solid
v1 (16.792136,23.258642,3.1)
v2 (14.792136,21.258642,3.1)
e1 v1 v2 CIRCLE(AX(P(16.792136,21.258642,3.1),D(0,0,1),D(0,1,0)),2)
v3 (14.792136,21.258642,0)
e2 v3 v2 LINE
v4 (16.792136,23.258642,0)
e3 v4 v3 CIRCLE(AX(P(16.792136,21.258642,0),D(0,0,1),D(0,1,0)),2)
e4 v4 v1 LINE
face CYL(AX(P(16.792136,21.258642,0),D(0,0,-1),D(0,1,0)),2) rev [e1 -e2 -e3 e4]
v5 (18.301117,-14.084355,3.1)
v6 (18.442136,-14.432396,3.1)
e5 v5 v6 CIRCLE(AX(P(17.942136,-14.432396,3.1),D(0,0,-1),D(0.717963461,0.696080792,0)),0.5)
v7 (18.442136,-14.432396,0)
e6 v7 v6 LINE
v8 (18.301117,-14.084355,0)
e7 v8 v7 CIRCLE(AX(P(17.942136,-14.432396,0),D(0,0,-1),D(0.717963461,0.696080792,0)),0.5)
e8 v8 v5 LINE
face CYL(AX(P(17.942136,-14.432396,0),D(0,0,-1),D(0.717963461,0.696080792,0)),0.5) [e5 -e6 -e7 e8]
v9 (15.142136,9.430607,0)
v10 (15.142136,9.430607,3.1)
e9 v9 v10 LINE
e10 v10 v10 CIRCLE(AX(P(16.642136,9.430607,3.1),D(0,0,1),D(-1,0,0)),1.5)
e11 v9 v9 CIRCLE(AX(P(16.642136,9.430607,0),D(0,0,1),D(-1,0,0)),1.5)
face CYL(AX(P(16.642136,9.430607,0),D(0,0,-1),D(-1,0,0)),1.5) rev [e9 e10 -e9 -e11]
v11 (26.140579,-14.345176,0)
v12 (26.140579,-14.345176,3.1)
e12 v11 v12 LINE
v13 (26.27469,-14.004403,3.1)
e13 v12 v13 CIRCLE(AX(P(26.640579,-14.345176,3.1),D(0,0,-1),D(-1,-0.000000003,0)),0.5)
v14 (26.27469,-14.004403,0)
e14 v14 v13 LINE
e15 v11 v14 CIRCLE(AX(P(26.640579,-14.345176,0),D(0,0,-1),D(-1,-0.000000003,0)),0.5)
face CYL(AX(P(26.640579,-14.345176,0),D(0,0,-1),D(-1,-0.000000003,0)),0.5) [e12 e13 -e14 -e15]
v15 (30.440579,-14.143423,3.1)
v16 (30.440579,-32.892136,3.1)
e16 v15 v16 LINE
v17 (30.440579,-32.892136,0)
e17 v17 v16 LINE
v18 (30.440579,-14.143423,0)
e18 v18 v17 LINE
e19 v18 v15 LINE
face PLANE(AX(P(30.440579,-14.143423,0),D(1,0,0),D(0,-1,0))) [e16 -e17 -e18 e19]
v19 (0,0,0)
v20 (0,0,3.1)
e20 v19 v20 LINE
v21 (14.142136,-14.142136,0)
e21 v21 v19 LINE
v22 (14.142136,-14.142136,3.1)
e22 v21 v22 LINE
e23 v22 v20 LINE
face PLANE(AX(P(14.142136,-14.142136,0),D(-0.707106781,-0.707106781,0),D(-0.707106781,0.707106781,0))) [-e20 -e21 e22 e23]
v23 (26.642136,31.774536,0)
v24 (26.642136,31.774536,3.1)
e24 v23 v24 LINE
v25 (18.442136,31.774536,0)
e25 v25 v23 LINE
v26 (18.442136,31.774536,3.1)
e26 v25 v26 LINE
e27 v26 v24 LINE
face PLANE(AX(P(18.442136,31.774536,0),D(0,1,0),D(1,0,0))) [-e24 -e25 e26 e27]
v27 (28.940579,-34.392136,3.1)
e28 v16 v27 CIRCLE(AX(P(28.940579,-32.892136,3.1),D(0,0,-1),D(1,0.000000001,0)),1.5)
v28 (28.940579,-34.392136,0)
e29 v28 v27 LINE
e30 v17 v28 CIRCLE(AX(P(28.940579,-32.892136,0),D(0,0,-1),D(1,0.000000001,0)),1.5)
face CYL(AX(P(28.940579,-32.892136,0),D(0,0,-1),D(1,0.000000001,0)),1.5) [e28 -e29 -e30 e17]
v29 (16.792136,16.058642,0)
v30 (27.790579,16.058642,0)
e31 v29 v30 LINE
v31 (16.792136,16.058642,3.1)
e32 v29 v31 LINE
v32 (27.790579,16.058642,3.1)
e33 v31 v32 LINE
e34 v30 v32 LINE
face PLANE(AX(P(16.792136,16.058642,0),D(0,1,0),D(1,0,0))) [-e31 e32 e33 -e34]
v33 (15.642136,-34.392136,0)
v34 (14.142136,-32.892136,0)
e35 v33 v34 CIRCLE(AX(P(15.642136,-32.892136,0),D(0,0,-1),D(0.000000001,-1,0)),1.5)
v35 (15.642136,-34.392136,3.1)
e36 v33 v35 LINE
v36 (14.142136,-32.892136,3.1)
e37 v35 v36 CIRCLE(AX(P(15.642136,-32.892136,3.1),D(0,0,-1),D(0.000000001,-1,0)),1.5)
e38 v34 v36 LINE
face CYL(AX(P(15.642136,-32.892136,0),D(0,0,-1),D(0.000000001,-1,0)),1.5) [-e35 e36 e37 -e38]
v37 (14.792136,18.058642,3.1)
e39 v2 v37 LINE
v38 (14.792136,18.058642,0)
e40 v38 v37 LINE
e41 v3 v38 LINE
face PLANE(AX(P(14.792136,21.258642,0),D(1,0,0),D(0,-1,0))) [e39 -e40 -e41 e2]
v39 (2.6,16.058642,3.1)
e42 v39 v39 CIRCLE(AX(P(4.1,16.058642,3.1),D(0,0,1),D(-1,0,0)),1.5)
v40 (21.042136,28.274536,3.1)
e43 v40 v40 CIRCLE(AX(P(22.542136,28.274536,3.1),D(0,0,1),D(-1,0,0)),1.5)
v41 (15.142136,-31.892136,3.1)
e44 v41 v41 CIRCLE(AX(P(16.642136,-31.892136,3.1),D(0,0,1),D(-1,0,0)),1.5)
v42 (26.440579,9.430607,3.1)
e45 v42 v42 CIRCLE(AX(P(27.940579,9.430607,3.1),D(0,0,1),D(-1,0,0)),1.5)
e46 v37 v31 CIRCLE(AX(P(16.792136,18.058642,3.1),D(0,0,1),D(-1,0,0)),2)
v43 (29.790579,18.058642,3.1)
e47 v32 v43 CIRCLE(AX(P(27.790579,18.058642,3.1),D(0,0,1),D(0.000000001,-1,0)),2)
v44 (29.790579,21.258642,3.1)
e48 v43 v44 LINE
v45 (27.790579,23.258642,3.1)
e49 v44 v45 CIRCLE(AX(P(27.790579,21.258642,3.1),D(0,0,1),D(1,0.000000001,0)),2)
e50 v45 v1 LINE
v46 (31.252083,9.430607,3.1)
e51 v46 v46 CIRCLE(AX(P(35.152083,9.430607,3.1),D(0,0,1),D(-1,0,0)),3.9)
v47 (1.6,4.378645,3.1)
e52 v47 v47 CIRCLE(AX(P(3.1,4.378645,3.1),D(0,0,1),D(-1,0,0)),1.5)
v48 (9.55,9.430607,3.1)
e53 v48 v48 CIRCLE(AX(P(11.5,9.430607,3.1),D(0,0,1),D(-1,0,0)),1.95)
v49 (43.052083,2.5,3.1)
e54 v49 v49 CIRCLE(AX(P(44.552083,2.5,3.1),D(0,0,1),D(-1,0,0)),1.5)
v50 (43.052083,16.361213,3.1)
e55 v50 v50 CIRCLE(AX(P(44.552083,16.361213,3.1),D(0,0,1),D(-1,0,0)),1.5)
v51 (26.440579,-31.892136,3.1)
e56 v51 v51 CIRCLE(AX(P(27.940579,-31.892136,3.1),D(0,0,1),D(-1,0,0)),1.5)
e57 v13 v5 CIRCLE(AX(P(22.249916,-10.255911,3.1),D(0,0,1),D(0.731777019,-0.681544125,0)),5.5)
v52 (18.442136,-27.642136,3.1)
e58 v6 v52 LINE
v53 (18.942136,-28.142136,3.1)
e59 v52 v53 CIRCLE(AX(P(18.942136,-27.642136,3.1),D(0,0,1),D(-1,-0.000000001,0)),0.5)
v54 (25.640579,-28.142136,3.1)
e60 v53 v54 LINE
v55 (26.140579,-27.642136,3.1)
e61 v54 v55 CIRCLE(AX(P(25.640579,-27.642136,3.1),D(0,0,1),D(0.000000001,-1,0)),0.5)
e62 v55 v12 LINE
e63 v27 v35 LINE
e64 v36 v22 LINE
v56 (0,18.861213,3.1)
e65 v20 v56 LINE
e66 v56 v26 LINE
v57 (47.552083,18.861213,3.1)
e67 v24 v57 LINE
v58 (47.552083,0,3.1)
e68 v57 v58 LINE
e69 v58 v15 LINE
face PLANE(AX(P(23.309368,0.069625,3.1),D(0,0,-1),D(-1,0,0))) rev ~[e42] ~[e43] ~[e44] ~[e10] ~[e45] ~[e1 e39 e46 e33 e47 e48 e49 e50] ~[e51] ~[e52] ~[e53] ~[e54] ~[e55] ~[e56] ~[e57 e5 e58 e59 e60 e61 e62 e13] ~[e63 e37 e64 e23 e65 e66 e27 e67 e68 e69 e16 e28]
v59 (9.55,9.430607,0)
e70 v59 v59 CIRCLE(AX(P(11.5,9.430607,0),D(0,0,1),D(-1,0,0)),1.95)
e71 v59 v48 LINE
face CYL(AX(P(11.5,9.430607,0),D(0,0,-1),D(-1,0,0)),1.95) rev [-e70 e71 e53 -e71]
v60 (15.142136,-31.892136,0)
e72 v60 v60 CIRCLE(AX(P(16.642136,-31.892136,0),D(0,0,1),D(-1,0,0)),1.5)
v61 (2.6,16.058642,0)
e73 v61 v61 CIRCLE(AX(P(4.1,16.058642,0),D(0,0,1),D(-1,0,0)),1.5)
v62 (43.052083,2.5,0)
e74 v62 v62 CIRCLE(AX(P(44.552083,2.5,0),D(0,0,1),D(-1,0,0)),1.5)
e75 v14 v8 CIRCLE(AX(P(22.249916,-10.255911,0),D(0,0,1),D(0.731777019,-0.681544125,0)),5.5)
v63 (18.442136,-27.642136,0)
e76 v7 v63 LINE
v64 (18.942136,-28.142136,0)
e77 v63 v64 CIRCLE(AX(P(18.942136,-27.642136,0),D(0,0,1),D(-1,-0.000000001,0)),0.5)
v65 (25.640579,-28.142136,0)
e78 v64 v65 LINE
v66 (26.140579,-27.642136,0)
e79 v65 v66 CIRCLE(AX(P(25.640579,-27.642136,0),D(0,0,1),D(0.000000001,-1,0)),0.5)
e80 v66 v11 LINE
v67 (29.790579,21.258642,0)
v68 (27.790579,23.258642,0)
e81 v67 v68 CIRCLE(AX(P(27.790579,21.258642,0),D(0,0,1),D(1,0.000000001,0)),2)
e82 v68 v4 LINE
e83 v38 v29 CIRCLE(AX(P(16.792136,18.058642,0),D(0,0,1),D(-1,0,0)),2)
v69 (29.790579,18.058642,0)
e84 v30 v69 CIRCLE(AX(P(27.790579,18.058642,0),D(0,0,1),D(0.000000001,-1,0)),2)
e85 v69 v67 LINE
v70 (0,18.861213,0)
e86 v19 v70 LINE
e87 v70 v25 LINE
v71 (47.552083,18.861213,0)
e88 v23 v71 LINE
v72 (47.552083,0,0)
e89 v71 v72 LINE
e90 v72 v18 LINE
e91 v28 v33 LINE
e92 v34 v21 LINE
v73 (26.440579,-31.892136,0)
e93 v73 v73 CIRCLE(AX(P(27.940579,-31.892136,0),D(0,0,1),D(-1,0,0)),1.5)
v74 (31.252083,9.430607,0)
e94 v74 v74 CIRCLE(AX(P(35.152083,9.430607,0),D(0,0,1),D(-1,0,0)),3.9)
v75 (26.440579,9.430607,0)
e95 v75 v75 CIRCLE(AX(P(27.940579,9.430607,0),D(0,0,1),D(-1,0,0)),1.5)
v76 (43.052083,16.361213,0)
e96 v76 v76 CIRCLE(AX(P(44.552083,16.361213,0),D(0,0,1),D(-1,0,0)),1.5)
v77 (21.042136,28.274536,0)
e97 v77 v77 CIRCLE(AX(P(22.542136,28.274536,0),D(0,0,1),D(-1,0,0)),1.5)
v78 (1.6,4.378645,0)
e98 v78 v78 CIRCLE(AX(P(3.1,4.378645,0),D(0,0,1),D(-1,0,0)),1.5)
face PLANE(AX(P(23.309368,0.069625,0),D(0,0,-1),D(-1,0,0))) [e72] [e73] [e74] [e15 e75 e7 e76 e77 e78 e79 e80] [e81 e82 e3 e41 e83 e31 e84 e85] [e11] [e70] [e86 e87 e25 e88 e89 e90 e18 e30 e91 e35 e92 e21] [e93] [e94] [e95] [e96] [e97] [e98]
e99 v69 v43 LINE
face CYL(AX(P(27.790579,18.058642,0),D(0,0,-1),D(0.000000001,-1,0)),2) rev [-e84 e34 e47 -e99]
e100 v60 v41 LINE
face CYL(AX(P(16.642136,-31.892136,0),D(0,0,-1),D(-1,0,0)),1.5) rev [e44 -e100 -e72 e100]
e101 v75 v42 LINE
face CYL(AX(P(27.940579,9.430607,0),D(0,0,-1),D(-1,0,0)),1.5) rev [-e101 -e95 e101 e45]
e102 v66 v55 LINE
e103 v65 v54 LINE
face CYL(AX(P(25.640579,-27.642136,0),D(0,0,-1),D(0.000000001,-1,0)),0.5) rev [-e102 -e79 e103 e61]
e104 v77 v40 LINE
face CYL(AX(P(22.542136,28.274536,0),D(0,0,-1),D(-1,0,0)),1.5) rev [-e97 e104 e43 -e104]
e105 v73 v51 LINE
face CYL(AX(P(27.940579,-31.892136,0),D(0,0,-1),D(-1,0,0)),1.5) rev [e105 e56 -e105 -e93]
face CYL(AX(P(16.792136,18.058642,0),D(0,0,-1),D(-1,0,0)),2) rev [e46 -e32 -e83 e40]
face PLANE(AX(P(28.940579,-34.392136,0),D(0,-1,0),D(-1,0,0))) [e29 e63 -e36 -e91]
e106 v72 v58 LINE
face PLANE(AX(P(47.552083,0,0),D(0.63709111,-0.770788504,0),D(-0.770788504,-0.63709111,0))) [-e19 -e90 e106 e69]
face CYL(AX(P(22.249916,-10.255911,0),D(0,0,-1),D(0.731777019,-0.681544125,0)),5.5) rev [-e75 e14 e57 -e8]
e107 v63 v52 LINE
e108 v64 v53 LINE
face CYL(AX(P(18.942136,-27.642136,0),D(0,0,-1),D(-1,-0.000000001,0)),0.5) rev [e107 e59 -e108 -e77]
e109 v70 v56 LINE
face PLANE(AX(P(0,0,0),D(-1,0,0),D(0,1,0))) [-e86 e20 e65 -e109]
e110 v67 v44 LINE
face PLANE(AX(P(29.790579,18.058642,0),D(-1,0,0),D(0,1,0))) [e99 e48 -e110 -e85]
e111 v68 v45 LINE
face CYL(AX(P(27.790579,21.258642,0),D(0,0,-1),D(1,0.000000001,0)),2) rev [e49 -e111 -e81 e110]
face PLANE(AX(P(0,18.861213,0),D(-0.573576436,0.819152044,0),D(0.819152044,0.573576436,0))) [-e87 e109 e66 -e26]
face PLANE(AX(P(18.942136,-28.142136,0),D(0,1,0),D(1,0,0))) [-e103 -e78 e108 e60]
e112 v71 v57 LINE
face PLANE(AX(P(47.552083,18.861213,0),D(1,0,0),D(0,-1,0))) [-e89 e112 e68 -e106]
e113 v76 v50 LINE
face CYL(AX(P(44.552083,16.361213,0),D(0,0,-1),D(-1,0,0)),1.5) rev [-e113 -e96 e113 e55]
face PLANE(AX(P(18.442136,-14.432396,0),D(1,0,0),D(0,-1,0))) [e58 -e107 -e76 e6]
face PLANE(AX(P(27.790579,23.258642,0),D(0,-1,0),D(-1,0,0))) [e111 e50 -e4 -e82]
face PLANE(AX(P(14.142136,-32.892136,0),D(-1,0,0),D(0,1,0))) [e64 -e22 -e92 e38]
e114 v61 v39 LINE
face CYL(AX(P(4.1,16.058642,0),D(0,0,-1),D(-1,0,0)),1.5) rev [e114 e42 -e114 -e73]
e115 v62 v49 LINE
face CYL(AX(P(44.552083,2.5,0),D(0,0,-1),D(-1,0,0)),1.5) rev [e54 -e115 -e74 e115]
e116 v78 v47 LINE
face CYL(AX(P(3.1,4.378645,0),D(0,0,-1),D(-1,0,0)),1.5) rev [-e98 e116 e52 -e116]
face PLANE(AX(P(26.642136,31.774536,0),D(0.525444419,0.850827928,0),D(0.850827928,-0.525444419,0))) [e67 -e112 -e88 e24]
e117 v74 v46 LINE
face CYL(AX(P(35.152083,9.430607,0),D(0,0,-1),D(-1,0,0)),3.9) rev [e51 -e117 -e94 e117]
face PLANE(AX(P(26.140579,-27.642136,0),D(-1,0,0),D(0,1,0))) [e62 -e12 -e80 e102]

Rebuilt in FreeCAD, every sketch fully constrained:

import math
import FreeCAD as App
import Part
import Sketcher

V = App.Vector
Q = App.Units.Quantity

doc = App.newDocument("Part")
body = doc.addObject("PartDesign::Body", "Body")

sketch1 = body.newObject("Sketcher::SketchObject", "Sketch")
sketch1.AttachmentSupport = (doc.getObject("XY_Plane"), [""])
sketch1.MapMode = "FlatFace"
sketch1.addGeometry(Part.LineSegment(V(0, 18.861213, 0), V(0, 0, 0)), False)
sketch1.addGeometry(Part.LineSegment(V(0, 0, 0), V(14.142136, -14.142136, 0)), False)
sketch1.addGeometry(Part.LineSegment(V(14.142136, -14.142136, 0), V(14.142136, -32.892136, 0)), False)
sketch1.addGeometry(Part.ArcOfCircle(Part.Circle(V(15.642136, -32.892136, 0), V(0, 0, 1), 1.5), math.radians(180), math.radians(270)), False)
sketch1.addGeometry(Part.LineSegment(V(15.642136, -34.392136, 0), V(28.940579, -34.392136, 0)), False)
sketch1.addGeometry(Part.ArcOfCircle(Part.Circle(V(28.940579, -32.892136, 0), V(0, 0, 1), 1.5), math.radians(-90), math.radians(0)), False)
sketch1.addGeometry(Part.LineSegment(V(30.440579, -32.892136, 0), V(30.440579, -14.143423, 0)), False)
sketch1.addGeometry(Part.LineSegment(V(30.440579, -14.143423, 0), V(47.552083, 0, 0)), False)
sketch1.addGeometry(Part.LineSegment(V(47.552083, 0, 0), V(47.552083, 18.861213, 0)), False)
sketch1.addGeometry(Part.LineSegment(V(47.552083, 18.861213, 0), V(26.642136, 31.774536, 0)), False)
sketch1.addGeometry(Part.LineSegment(V(26.642136, 31.774536, 0), V(18.442136, 31.774536, 0)), False)
sketch1.addGeometry(Part.LineSegment(V(18.442136, 31.774536, 0), V(0, 18.861213, 0)), False)
sketch1.addGeometry(Part.Circle(V(27.940579, -31.892136, 0), V(0, 0, 1), 1.5), False)
sketch1.addGeometry(Part.Circle(V(16.642136, -31.892136, 0), V(0, 0, 1), 1.5), False)
sketch1.addGeometry(Part.ArcOfCircle(Part.Circle(V(17.942136, -14.432396, 0), V(0, 0, 1), 0.5), math.radians(0), math.radians(44.113405)), False)
sketch1.addGeometry(Part.ArcOfCircle(Part.Circle(V(22.249916, -10.255911, 0), V(0, 0, 1), 5.5), math.radians(-42.964425), math.radians(224.113405)), False)
sketch1.addGeometry(Part.ArcOfCircle(Part.Circle(V(26.640579, -14.345176, 0), V(0, 0, 1), 0.5), math.radians(137.035575), math.radians(180)), False)
sketch1.addGeometry(Part.LineSegment(V(26.140579, -14.345176, 0), V(26.140579, -27.642136, 0)), False)
sketch1.addGeometry(Part.ArcOfCircle(Part.Circle(V(25.640579, -27.642136, 0), V(0, 0, 1), 0.5), math.radians(-90), math.radians(0)), False)
sketch1.addGeometry(Part.LineSegment(V(25.640579, -28.142136, 0), V(18.942136, -28.142136, 0)), False)
sketch1.addGeometry(Part.ArcOfCircle(Part.Circle(V(18.942136, -27.642136, 0), V(0, 0, 1), 0.5), math.radians(180), math.radians(270)), False)
sketch1.addGeometry(Part.LineSegment(V(18.442136, -27.642136, 0), V(18.442136, -14.432396, 0)), False)
sketch1.addGeometry(Part.Circle(V(44.552083, 2.5, 0), V(0, 0, 1), 1.5), False)
sketch1.addGeometry(Part.Circle(V(35.152083, 9.430607, 0), V(0, 0, 1), 3.9), False)
sketch1.addGeometry(Part.Circle(V(27.940579, 9.430607, 0), V(0, 0, 1), 1.5), False)
sketch1.addGeometry(Part.Circle(V(44.552083, 16.361213, 0), V(0, 0, 1), 1.5), False)
sketch1.addGeometry(Part.Circle(V(16.642136, 9.430607, 0), V(0, 0, 1), 1.5), False)
sketch1.addGeometry(Part.Circle(V(3.1, 4.378645, 0), V(0, 0, 1), 1.5), False)
sketch1.addGeometry(Part.Circle(V(11.5, 9.430607, 0), V(0, 0, 1), 1.95), False)
sketch1.addGeometry(Part.ArcOfCircle(Part.Circle(V(16.792136, 18.058642, 0), V(0, 0, 1), 2), math.radians(180), math.radians(270)), False)
sketch1.addGeometry(Part.LineSegment(V(14.792136, 18.058642, 0), V(14.792136, 21.258642, 0)), False)
sketch1.addGeometry(Part.ArcOfCircle(Part.Circle(V(16.792136, 21.258642, 0), V(0, 0, 1), 2), math.radians(90), math.radians(180)), False)
sketch1.addGeometry(Part.LineSegment(V(16.792136, 23.258642, 0), V(27.790579, 23.258642, 0)), False)
sketch1.addGeometry(Part.ArcOfCircle(Part.Circle(V(27.790579, 21.258642, 0), V(0, 0, 1), 2), math.radians(0), math.radians(90)), False)
sketch1.addGeometry(Part.LineSegment(V(29.790579, 21.258642, 0), V(29.790579, 18.058642, 0)), False)
sketch1.addGeometry(Part.ArcOfCircle(Part.Circle(V(27.790579, 18.058642, 0), V(0, 0, 1), 2), math.radians(-90), math.radians(0)), False)
sketch1.addGeometry(Part.LineSegment(V(27.790579, 16.058642, 0), V(16.792136, 16.058642, 0)), False)
sketch1.addGeometry(Part.Circle(V(22.542136, 28.274536, 0), V(0, 0, 1), 1.5), False)
sketch1.addGeometry(Part.Circle(V(4.1, 16.058642, 0), V(0, 0, 1), 1.5), False)
sketch1.addConstraint(Sketcher.Constraint("Coincident", 0, 2, 1, 1))
sketch1.addConstraint(Sketcher.Constraint("Coincident", 1, 2, 2, 1))
sketch1.addConstraint(Sketcher.Constraint("Tangent", 2, 2, 3, 1))
sketch1.addConstraint(Sketcher.Constraint("Tangent", 3, 2, 4, 1))
sketch1.addConstraint(Sketcher.Constraint("Tangent", 4, 2, 5, 1))
sketch1.addConstraint(Sketcher.Constraint("Tangent", 5, 2, 6, 1))
sketch1.addConstraint(Sketcher.Constraint("Coincident", 6, 2, 7, 1))
sketch1.addConstraint(Sketcher.Constraint("Coincident", 7, 2, 8, 1))
sketch1.addConstraint(Sketcher.Constraint("Coincident", 8, 2, 9, 1))
sketch1.addConstraint(Sketcher.Constraint("Coincident", 9, 2, 10, 1))
sketch1.addConstraint(Sketcher.Constraint("Coincident", 10, 2, 11, 1))
sketch1.addConstraint(Sketcher.Constraint("Coincident", 11, 2, 0, 1))
sketch1.addConstraint(Sketcher.Constraint("Tangent", 14, 2, 15, 2))
sketch1.addConstraint(Sketcher.Constraint("Tangent", 15, 1, 16, 1))
sketch1.addConstraint(Sketcher.Constraint("Tangent", 16, 2, 17, 1))
sketch1.addConstraint(Sketcher.Constraint("Tangent", 17, 2, 18, 2))
sketch1.addConstraint(Sketcher.Constraint("Tangent", 18, 1, 19, 1))
sketch1.addConstraint(Sketcher.Constraint("Tangent", 19, 2, 20, 2))
sketch1.addConstraint(Sketcher.Constraint("Tangent", 20, 1, 21, 1))
sketch1.addConstraint(Sketcher.Constraint("Tangent", 21, 2, 14, 1))
sketch1.addConstraint(Sketcher.Constraint("Tangent", 29, 1, 30, 1))
sketch1.addConstraint(Sketcher.Constraint("Tangent", 30, 2, 31, 2))
sketch1.addConstraint(Sketcher.Constraint("Tangent", 31, 1, 32, 1))
sketch1.addConstraint(Sketcher.Constraint("Tangent", 32, 2, 33, 2))
sketch1.addConstraint(Sketcher.Constraint("Tangent", 33, 1, 34, 1))
sketch1.addConstraint(Sketcher.Constraint("Tangent", 34, 2, 35, 2))
sketch1.addConstraint(Sketcher.Constraint("Tangent", 35, 1, 36, 1))
sketch1.addConstraint(Sketcher.Constraint("Tangent", 36, 2, 29, 2))
sketch1.addConstraint(Sketcher.Constraint("Vertical", 0))
sketch1.addConstraint(Sketcher.Constraint("Vertical", 2))
sketch1.addConstraint(Sketcher.Constraint("Horizontal", 4))
sketch1.addConstraint(Sketcher.Constraint("Vertical", 6))
sketch1.addConstraint(Sketcher.Constraint("Vertical", 8))
sketch1.addConstraint(Sketcher.Constraint("Horizontal", 10))
sketch1.addConstraint(Sketcher.Constraint("Vertical", 17))
sketch1.addConstraint(Sketcher.Constraint("Horizontal", 19))
sketch1.addConstraint(Sketcher.Constraint("Vertical", 21))
sketch1.addConstraint(Sketcher.Constraint("Vertical", 30))
sketch1.addConstraint(Sketcher.Constraint("Horizontal", 32))
sketch1.addConstraint(Sketcher.Constraint("Vertical", 34))
sketch1.addConstraint(Sketcher.Constraint("Horizontal", 36))
sketch1.addConstraint(Sketcher.Constraint("Coincident", 0, 2, -1, 1))
sketch1.addConstraint(Sketcher.Constraint("Equal", 3, 5))
sketch1.addConstraint(Sketcher.Constraint("Equal", 5, 12))
sketch1.addConstraint(Sketcher.Constraint("Equal", 12, 13))
sketch1.addConstraint(Sketcher.Constraint("Equal", 14, 16))
sketch1.addConstraint(Sketcher.Constraint("Equal", 16, 18))
sketch1.addConstraint(Sketcher.Constraint("Equal", 18, 20))
sketch1.addConstraint(Sketcher.Constraint("Equal", 13, 22))
sketch1.addConstraint(Sketcher.Constraint("Equal", 22, 24))
sketch1.addConstraint(Sketcher.Constraint("Equal", 24, 25))
sketch1.addConstraint(Sketcher.Constraint("Equal", 25, 26))
sketch1.addConstraint(Sketcher.Constraint("Equal", 26, 27))
sketch1.addConstraint(Sketcher.Constraint("Equal", 29, 31))
sketch1.addConstraint(Sketcher.Constraint("Equal", 31, 33))
sketch1.addConstraint(Sketcher.Constraint("Equal", 33, 35))
sketch1.addConstraint(Sketcher.Constraint("Equal", 27, 37))
sketch1.addConstraint(Sketcher.Constraint("Equal", 37, 38))
sketch1.addConstraint(Sketcher.Constraint("PointOnObject", 7, 2, -1))
sketch1.addConstraint(Sketcher.Constraint("Horizontal", 12, 3, 13, 3))
sketch1.addConstraint(Sketcher.Constraint("Horizontal", 23, 3, 24, 3))
sketch1.addConstraint(Sketcher.Constraint("Horizontal", 24, 3, 26, 3))
sketch1.addConstraint(Sketcher.Constraint("Horizontal", 26, 3, 28, 3))
sketch1.addConstraint(Sketcher.Constraint("Horizontal", 8, 2, 11, 2))
sketch1.addConstraint(Sketcher.Constraint("Horizontal", 38, 3, 35, 1))
sketch1.addConstraint(Sketcher.Constraint("Vertical", 12, 3, 24, 3))
sketch1.addConstraint(Sketcher.Constraint("Vertical", 22, 3, 25, 3))
sketch1.addConstraint(Sketcher.Constraint("Vertical", 13, 3, 26, 3))
sketch1.addConstraint(Sketcher.Constraint("Vertical", 10, 2, 20, 1))
sketch1.addConstraint(Sketcher.Constraint("Diameter", 12, Q("3 mm")))
sketch1.addConstraint(Sketcher.Constraint("Radius", 29, Q("2 mm")))
sketch1.addConstraint(Sketcher.Constraint("Diameter", 23, Q("7.8 mm")))
sketch1.addConstraint(Sketcher.Constraint("Diameter", 28, Q("3.9 mm")))
sketch1.addConstraint(Sketcher.Constraint("Radius", 14, Q("0.5 mm")))
sketch1.addConstraint(Sketcher.Constraint("Radius", 15, Q("5.5 mm")))
sketch1.addConstraint(Sketcher.Constraint("Angle", 1, Q("-45 deg")))
sketch1.addConstraint(Sketcher.Constraint("Angle", 11, Q("-145 deg")))
sketch1.addConstraint(Sketcher.Constraint("Distance", 1, Q("20 mm")))
sketch1.addConstraint(Sketcher.Constraint("DistanceX", 10, 2, 10, 1, Q("8.2 mm")))
sketch1.addConstraint(Sketcher.Constraint("DistanceY", 30, 1, 30, 2, Q("3.2 mm")))
sketch1.addConstraint(Sketcher.Constraint("DistanceX", 12, 3, 5, 3, Q("1 mm")))
sketch1.addConstraint(Sketcher.Constraint("DistanceY", 5, 3, 12, 3, Q("1 mm")))
sketch1.addConstraint(Sketcher.Constraint("DistanceX", 3, 3, 13, 3, Q("1 mm")))
sketch1.addConstraint(Sketcher.Constraint("DistanceX", 27, 3, 38, 3, Q("1 mm")))
sketch1.addConstraint(Sketcher.Constraint("DistanceX", 22, 3, 7, 2, Q("3 mm")))
sketch1.addConstraint(Sketcher.Constraint("Distance", 7, Q("22.2 mm")))
sketch1.addConstraint(Sketcher.Constraint("DistanceY", 2, 2, 2, 1, Q("18.75 mm")))
sketch1.addConstraint(Sketcher.Constraint("DistanceY", -1, 1, 22, 3, Q("2.5 mm")))
sketch1.addConstraint(Sketcher.Constraint("DistanceX", -1, 1, 27, 3, Q("3.1 mm")))
sketch1.addConstraint(Sketcher.Constraint("DistanceX", -1, 1, 28, 3, Q("11.5 mm")))
sketch1.addConstraint(Sketcher.Constraint("DistanceX", 13, 3, 14, 3, Q("1.3 mm")))
sketch1.addConstraint(Sketcher.Constraint("DistanceX", 16, 3, 12, 3, Q("1.3 mm")))
sketch1.addConstraint(Sketcher.Constraint("DistanceX", 23, 3, 22, 3, Q("9.4 mm")))
sketch1.addConstraint(Sketcher.Constraint("DistanceY", 20, 3, 1, 2, Q("13.5 mm")))
sketch1.addConstraint(Sketcher.Constraint("DistanceY", 25, 3, 8, 2, Q("2.5 mm")))
sketch1.addConstraint(Sketcher.Constraint("DistanceX", 37, 3, 9, 2, Q("4.1 mm")))
sketch1.addConstraint(Sketcher.Constraint("DistanceY", 37, 3, 9, 2, Q("3.5 mm")))
sketch1.addConstraint(Sketcher.Constraint("DistanceX", 26, 3, 29, 3, Q("0.15 mm")))
sketch1.addConstraint(Sketcher.Constraint("DistanceX", 33, 3, 24, 3, Q("0.15 mm")))
sketch1.addConstraint(Sketcher.Constraint("Distance", 9, Q("24.576001 mm")))
sketch1.addConstraint(Sketcher.Constraint("DistanceY", 17, 2, 17, 1, Q("13.29696 mm")))
sketch1.addConstraint(Sketcher.Constraint("DistanceY", 21, 1, 21, 2, Q("13.20974 mm")))
sketch1.addConstraint(Sketcher.Constraint("DistanceX", 14, 2, 15, 3, Q("3.948799 mm")))
sketch1.addConstraint(Sketcher.Constraint("DistanceY", 0, 2, 0, 1, Q("18.861213 mm")))
sketch1.addConstraint(Sketcher.Constraint("DistanceY", 27, 3, 26, 3, Q("5.051962 mm")))
sketch1.addConstraint(Sketcher.Constraint("DistanceY", 14, 3, 27, 3, Q("18.81104 mm")))
sketch1.addConstraint(Sketcher.Constraint("DistanceY", 35, 3, 8, 2, Q("0.802571 mm")))
pad1 = body.newObject("PartDesign::Pad", "Pad")
pad1.Profile = sketch1
pad1.Length = 3.1

doc.recompute()
